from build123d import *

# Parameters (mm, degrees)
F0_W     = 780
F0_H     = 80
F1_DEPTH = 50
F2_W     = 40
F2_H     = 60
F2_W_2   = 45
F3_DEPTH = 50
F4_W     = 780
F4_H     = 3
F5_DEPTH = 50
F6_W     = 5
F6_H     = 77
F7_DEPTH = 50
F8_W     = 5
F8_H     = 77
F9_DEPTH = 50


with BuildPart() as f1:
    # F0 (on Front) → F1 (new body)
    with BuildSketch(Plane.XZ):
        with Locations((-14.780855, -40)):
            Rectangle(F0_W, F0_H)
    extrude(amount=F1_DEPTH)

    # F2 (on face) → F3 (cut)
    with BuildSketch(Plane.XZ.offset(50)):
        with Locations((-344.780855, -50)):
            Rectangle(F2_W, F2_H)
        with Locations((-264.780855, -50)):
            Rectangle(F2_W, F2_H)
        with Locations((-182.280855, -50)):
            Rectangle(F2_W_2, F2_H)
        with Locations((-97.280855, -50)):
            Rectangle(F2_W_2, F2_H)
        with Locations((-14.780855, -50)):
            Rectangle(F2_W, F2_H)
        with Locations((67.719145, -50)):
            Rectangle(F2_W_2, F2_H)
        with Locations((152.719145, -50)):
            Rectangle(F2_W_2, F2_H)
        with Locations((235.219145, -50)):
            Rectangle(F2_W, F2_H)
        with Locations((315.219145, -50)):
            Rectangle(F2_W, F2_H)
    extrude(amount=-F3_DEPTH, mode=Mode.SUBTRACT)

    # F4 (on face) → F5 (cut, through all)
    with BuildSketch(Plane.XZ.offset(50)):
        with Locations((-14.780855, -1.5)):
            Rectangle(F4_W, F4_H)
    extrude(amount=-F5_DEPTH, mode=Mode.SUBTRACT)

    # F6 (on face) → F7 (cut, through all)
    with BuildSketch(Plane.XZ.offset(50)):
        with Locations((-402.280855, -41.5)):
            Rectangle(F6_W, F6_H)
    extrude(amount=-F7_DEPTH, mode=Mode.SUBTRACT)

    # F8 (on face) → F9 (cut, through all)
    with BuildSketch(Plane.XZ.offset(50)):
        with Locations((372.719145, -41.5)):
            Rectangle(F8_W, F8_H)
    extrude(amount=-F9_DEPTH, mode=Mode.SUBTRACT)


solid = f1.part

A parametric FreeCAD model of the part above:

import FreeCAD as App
import Part
import Sketcher
Q = App.Units.Quantity

doc = App.newDocument("Part")
body = doc.addObject("PartDesign::Body", "Body")

# Sketch on XZ plane
sketch1 = doc.addObject("Sketcher::SketchObject", "Sketch")
body.addObject(sketch1)
sketch1.AttachmentSupport = (doc.XZ_Plane, [""])
sketch1.MapMode = "FlatFace"
sketch1.addGeometry([
    Part.LineSegment(App.Vector(-404.780855, 0, 0), App.Vector(-404.780855, -80, 0)),
    Part.LineSegment(App.Vector(-404.780855, -80, 0), App.Vector(375.219145, -80, 0)),
    Part.LineSegment(App.Vector(375.219145, -80, 0), App.Vector(375.219145, 0, 0)),
    Part.LineSegment(App.Vector(375.219145, 0, 0), App.Vector(-404.780855, 0, 0)),
], False)
sketch1.addConstraint([
    Sketcher.Constraint("Coincident", 0, 2, 1, 1),
    Sketcher.Constraint("Coincident", 1, 2, 2, 1),
    Sketcher.Constraint("Coincident", 2, 2, 3, 1),
    Sketcher.Constraint("Coincident", 3, 2, 0, 1),
    Sketcher.Constraint("Vertical", 0),
    Sketcher.Constraint("Horizontal", 1),
    Sketcher.Constraint("Vertical", 2),
    Sketcher.Constraint("Horizontal", 3),
    Sketcher.Constraint("PointOnObject", 2, 2, -1),
    Sketcher.Constraint("DistanceX", 1, 1, 1, 2, Q("780 mm")),
    Sketcher.Constraint("DistanceY", 0, 2, 0, 1, Q("80 mm")),
    Sketcher.Constraint("DistanceX", 0, 2, -1, 1, Q("404.780855 mm")),
])
pad1 = doc.addObject("PartDesign::Pad", "Pad")
body.addObject(pad1)
pad1.Profile = sketch1
pad1.Length = 50

# Sketch on XZ plane
sketch2 = doc.addObject("Sketcher::SketchObject", "Sketch001")
body.addObject(sketch2)
sketch2.AttachmentSupport = (doc.XZ_Plane, [""])
sketch2.MapMode = "FlatFace"
sketch2.AttachmentOffset = App.Placement(App.Vector(0, 0, 50), App.Rotation())
sketch2.addGeometry([
    Part.LineSegment(App.Vector(-364.780855, -20, 0), App.Vector(-364.780855, -80, 0)),  # 0
    Part.LineSegment(App.Vector(-364.780855, -80, 0), App.Vector(-324.780855, -80, 0)),  # 1
    Part.LineSegment(App.Vector(-324.780855, -80, 0), App.Vector(-324.780855, -20, 0)),  # 2
    Part.LineSegment(App.Vector(-324.780855, -20, 0), App.Vector(-364.780855, -20, 0)),  # 3
    Part.LineSegment(App.Vector(-284.780855, -20, 0), App.Vector(-284.780855, -80, 0)),  # 4
    Part.LineSegment(App.Vector(-284.780855, -80, 0), App.Vector(-244.780855, -80, 0)),  # 5
    Part.LineSegment(App.Vector(-244.780855, -80, 0), App.Vector(-244.780855, -20, 0)),  # 6
    Part.LineSegment(App.Vector(-244.780855, -20, 0), App.Vector(-284.780855, -20, 0)),  # 7
    Part.LineSegment(App.Vector(-204.780855, -20, 0), App.Vector(-204.780855, -80, 0)),  # 8
    Part.LineSegment(App.Vector(-204.780855, -80, 0), App.Vector(-159.780855, -80, 0)),  # 9
    Part.LineSegment(App.Vector(-159.780855, -80, 0), App.Vector(-159.780855, -20, 0)),  # 10
    Part.LineSegment(App.Vector(-159.780855, -20, 0), App.Vector(-204.780855, -20, 0)),  # 11
    Part.LineSegment(App.Vector(-119.780855, -20, 0), App.Vector(-119.780855, -80, 0)),  # 12
    Part.LineSegment(App.Vector(-119.780855, -80, 0), App.Vector(-74.780855, -80, 0)),  # 13
    Part.LineSegment(App.Vector(-74.780855, -80, 0), App.Vector(-74.780855, -20, 0)),  # 14
    Part.LineSegment(App.Vector(-74.780855, -20, 0), App.Vector(-119.780855, -20, 0)),  # 15
    Part.LineSegment(App.Vector(-34.780855, -20, 0), App.Vector(-34.780855, -80, 0)),  # 16
    Part.LineSegment(App.Vector(-34.780855, -80, 0), App.Vector(5.219145, -80, 0)),  # 17
    Part.LineSegment(App.Vector(5.219145, -80, 0), App.Vector(5.219145, -20, 0)),  # 18
    Part.LineSegment(App.Vector(5.219145, -20, 0), App.Vector(-34.780855, -20, 0)),  # 19
    Part.LineSegment(App.Vector(45.219145, -20, 0), App.Vector(45.219145, -80, 0)),  # 20
    Part.LineSegment(App.Vector(45.219145, -80, 0), App.Vector(90.219145, -80, 0)),  # 21
    Part.LineSegment(App.Vector(90.219145, -80, 0), App.Vector(90.219145, -20, 0)),  # 22
    Part.LineSegment(App.Vector(90.219145, -20, 0), App.Vector(45.219145, -20, 0)),  # 23
    Part.LineSegment(App.Vector(130.219145, -20, 0), App.Vector(130.219145, -80, 0)),  # 24
    Part.LineSegment(App.Vector(130.219145, -80, 0), App.Vector(175.219145, -80, 0)),  # 25
    Part.LineSegment(App.Vector(175.219145, -80, 0), App.Vector(175.219145, -20, 0)),  # 26
    Part.LineSegment(App.Vector(175.219145, -20, 0), App.Vector(130.219145, -20, 0)),  # 27
    Part.LineSegment(App.Vector(215.219145, -20, 0), App.Vector(215.219145, -80, 0)),  # 28
    Part.LineSegment(App.Vector(215.219145, -80, 0), App.Vector(255.219145, -80, 0)),  # 29
    Part.LineSegment(App.Vector(255.219145, -80, 0), App.Vector(255.219145, -20, 0)),  # 30
    Part.LineSegment(App.Vector(255.219145, -20, 0), App.Vector(215.219145, -20, 0)),  # 31
    Part.LineSegment(App.Vector(295.219145, -20, 0), App.Vector(295.219145, -80, 0)),  # 32
    Part.LineSegment(App.Vector(295.219145, -80, 0), App.Vector(335.219145, -80, 0)),  # 33
    Part.LineSegment(App.Vector(335.219145, -80, 0), App.Vector(335.219145, -20, 0)),  # 34
    Part.LineSegment(App.Vector(335.219145, -20, 0), App.Vector(295.219145, -20, 0)),  # 35
], False)
sketch2.addConstraint([
    Sketcher.Constraint("Coincident", 0, 2, 1, 1),
    Sketcher.Constraint("Coincident", 1, 2, 2, 1),
    Sketcher.Constraint("Coincident", 2, 2, 3, 1),
    Sketcher.Constraint("Coincident", 3, 2, 0, 1),
    Sketcher.Constraint("Coincident", 4, 2, 5, 1),
    Sketcher.Constraint("Coincident", 5, 2, 6, 1),
    Sketcher.Constraint("Coincident", 6, 2, 7, 1),
    Sketcher.Constraint("Coincident", 7, 2, 4, 1),
    Sketcher.Constraint("Coincident", 8, 2, 9, 1),
    Sketcher.Constraint("Coincident", 9, 2, 10, 1),
    Sketcher.Constraint("Coincident", 10, 2, 11, 1),
    Sketcher.Constraint("Coincident", 11, 2, 8, 1),
    Sketcher.Constraint("Coincident", 12, 2, 13, 1),
    Sketcher.Constraint("Coincident", 13, 2, 14, 1),
    Sketcher.Constraint("Coincident", 14, 2, 15, 1),
    Sketcher.Constraint("Coincident", 15, 2, 12, 1),
    Sketcher.Constraint("Coincident", 16, 2, 17, 1),
    Sketcher.Constraint("Coincident", 17, 2, 18, 1),
    Sketcher.Constraint("Coincident", 18, 2, 19, 1),
    Sketcher.Constraint("Coincident", 19, 2, 16, 1),
    Sketcher.Constraint("Coincident", 20, 2, 21, 1),
    Sketcher.Constraint("Coincident", 21, 2, 22, 1),
    Sketcher.Constraint("Coincident", 22, 2, 23, 1),
    Sketcher.Constraint("Coincident", 23, 2, 20, 1),
    Sketcher.Constraint("Coincident", 24, 2, 25, 1),
    Sketcher.Constraint("Coincident", 25, 2, 26, 1),
    Sketcher.Constraint("Coincident", 26, 2, 27, 1),
    Sketcher.Constraint("Coincident", 27, 2, 24, 1),
    Sketcher.Constraint("Coincident", 28, 2, 29, 1),
    Sketcher.Constraint("Coincident", 29, 2, 30, 1),
    Sketcher.Constraint("Coincident", 30, 2, 31, 1),
    Sketcher.Constraint("Coincident", 31, 2, 28, 1),
    Sketcher.Constraint("Coincident", 32, 2, 33, 1),
    Sketcher.Constraint("Coincident", 33, 2, 34, 1),
    Sketcher.Constraint("Coincident", 34, 2, 35, 1),
    Sketcher.Constraint("Coincident", 35, 2, 32, 1),
    Sketcher.Constraint("Vertical", 0),
    Sketcher.Constraint("Horizontal", 1),
    Sketcher.Constraint("Vertical", 2),
    Sketcher.Constraint("Horizontal", 3),
    Sketcher.Constraint("Vertical", 4),
    Sketcher.Constraint("Horizontal", 5),
    Sketcher.Constraint("Vertical", 6),
    Sketcher.Constraint("Horizontal", 7),
    Sketcher.Constraint("Vertical", 8),
    Sketcher.Constraint("Horizontal", 9),
    Sketcher.Constraint("Vertical", 10),
    Sketcher.Constraint("Horizontal", 11),
    Sketcher.Constraint("Vertical", 12),
    Sketcher.Constraint("Horizontal", 13),
    Sketcher.Constraint("Vertical", 14),
    Sketcher.Constraint("Horizontal", 15),
    Sketcher.Constraint("Vertical", 16),
    Sketcher.Constraint("Horizontal", 17),
    Sketcher.Constraint("Vertical", 18),
    Sketcher.Constraint("Horizontal", 19),
    Sketcher.Constraint("Vertical", 20),
    Sketcher.Constraint("Horizontal", 21),
    Sketcher.Constraint("Vertical", 22),
    Sketcher.Constraint("Horizontal", 23),
    Sketcher.Constraint("Vertical", 24),
    Sketcher.Constraint("Horizontal", 25),
    Sketcher.Constraint("Vertical", 26),
    Sketcher.Constraint("Horizontal", 27),
    Sketcher.Constraint("Vertical", 28),
    Sketcher.Constraint("Horizontal", 29),
    Sketcher.Constraint("Vertical", 30),
    Sketcher.Constraint("Horizontal", 31),
    Sketcher.Constraint("Vertical", 32),
    Sketcher.Constraint("Horizontal", 33),
    Sketcher.Constraint("Vertical", 34),
    Sketcher.Constraint("Horizontal", 35),
    Sketcher.Constraint("Horizontal", 1, 2, 4, 2),
    Sketcher.Constraint("Horizontal", 3, 2, 6, 2),
    Sketcher.Constraint("Horizontal", 5, 2, 8, 2),
    Sketcher.Constraint("Horizontal", 7, 2, 10, 2),
    Sketcher.Constraint("Horizontal", 9, 2, 12, 2),
    Sketcher.Constraint("Horizontal", 11, 2, 14, 2),
    Sketcher.Constraint("Horizontal", 13, 2, 16, 2),
    Sketcher.Constraint("Horizontal", 15, 2, 18, 2),
    Sketcher.Constraint("Horizontal", 17, 2, 20, 2),
    Sketcher.Constraint("Horizontal", 19, 2, 22, 2),
    Sketcher.Constraint("Horizontal", 21, 2, 24, 2),
    Sketcher.Constraint("Horizontal", 23, 2, 26, 2),
    Sketcher.Constraint("Horizontal", 25, 2, 28, 2),
    Sketcher.Constraint("Horizontal", 27, 2, 30, 2),
    Sketcher.Constraint("Horizontal", 29, 2, 32, 2),
    Sketcher.Constraint("Horizontal", 31, 2, 34, 2),
    Sketcher.Constraint("Equal", 3, 5),
    Sketcher.Constraint("Equal", 11, 13),
    Sketcher.Constraint("Equal", 7, 17),
    Sketcher.Constraint("Equal", 15, 21),
    Sketcher.Constraint("Equal", 23, 25),
    Sketcher.Constraint("Equal", 19, 29),
    Sketcher.Constraint("Equal", 31, 33),
    Sketcher.Constraint("DistanceX", 1, 1, 1, 2, Q("40 mm")),
    Sketcher.Constraint("DistanceX", 9, 1, 9, 2, Q("45 mm")),
    Sketcher.Constraint("DistanceY", 0, 2, 0, 1, Q("60 mm")),
    Sketcher.Constraint("DistanceY", 0, 2, -1, 1, Q("80 mm")),
    Sketcher.Constraint("DistanceX", 1, 2, 4, 2, Q("40 mm")),
    Sketcher.Constraint("DistanceX", 5, 2, 8, 2, Q("40 mm")),
    Sketcher.Constraint("DistanceX", 9, 2, 12, 2, Q("40 mm")),
    Sketcher.Constraint("DistanceX", 13, 2, 16, 2, Q("40 mm")),
    Sketcher.Constraint("DistanceX", 17, 2, 20, 2, Q("40 mm")),
    Sketcher.Constraint("DistanceX", 21, 2, 24, 2, Q("40 mm")),
    Sketcher.Constraint("DistanceX", 25, 2, 28, 2, Q("40 mm")),
    Sketcher.Constraint("DistanceX", 29, 2, 32, 2, Q("40 mm")),
    Sketcher.Constraint("DistanceX", 0, 2, -1, 1, Q("364.780855 mm")),
])
pocket1 = doc.addObject("PartDesign::Pocket", "Pocket")
body.addObject(pocket1)
pocket1.Profile = sketch2
pocket1.Length = 50

# Sketch on XZ plane
sketch3 = doc.addObject("Sketcher::SketchObject", "Sketch002")
body.addObject(sketch3)
sketch3.AttachmentSupport = (doc.XZ_Plane, [""])
sketch3.MapMode = "FlatFace"
sketch3.AttachmentOffset = App.Placement(App.Vector(0, 0, 50), App.Rotation())
sketch3.addGeometry([
    Part.LineSegment(App.Vector(-404.780855, 0, 0), App.Vector(-404.780855, -3, 0)),
    Part.LineSegment(App.Vector(-404.780855, -3, 0), App.Vector(375.219145, -3, 0)),
    Part.LineSegment(App.Vector(375.219145, -3, 0), App.Vector(375.219145, 0, 0)),
    Part.LineSegment(App.Vector(375.219145, 0, 0), App.Vector(-404.780855, 0, 0)),
], False)
sketch3.addConstraint([
    Sketcher.Constraint("Coincident", 0, 2, 1, 1),
    Sketcher.Constraint("Coincident", 1, 2, 2, 1),
    Sketcher.Constraint("Coincident", 2, 2, 3, 1),
    Sketcher.Constraint("Coincident", 3, 2, 0, 1),
    Sketcher.Constraint("Vertical", 0),
    Sketcher.Constraint("Horizontal", 1),
    Sketcher.Constraint("Vertical", 2),
    Sketcher.Constraint("Horizontal", 3),
    Sketcher.Constraint("PointOnObject", 2, 2, -1),
    Sketcher.Constraint("DistanceX", 1, 1, 1, 2, Q("780 mm")),
    Sketcher.Constraint("DistanceY", 0, 2, 0, 1, Q("3 mm")),
    Sketcher.Constraint("DistanceX", 0, 2, -1, 1, Q("404.780855 mm")),
])
pocket2 = doc.addObject("PartDesign::Pocket", "Pocket001")
body.addObject(pocket2)
pocket2.Profile = sketch3
pocket2.Type = "ThroughAll"

# Sketch on XZ plane
sketch4 = doc.addObject("Sketcher::SketchObject", "Sketch003")
body.addObject(sketch4)
sketch4.AttachmentSupport = (doc.XZ_Plane, [""])
sketch4.MapMode = "FlatFace"
sketch4.AttachmentOffset = App.Placement(App.Vector(0, 0, 50), App.Rotation())
sketch4.addGeometry([
    Part.LineSegment(App.Vector(-404.780855, -3, 0), App.Vector(-404.780855, -80, 0)),
    Part.LineSegment(App.Vector(-404.780855, -80, 0), App.Vector(-399.780855, -80, 0)),
    Part.LineSegment(App.Vector(-399.780855, -80, 0), App.Vector(-399.780855, -3, 0)),
    Part.LineSegment(App.Vector(-399.780855, -3, 0), App.Vector(-404.780855, -3, 0)),
], False)
sketch4.addConstraint([
    Sketcher.Constraint("Coincident", 0, 2, 1, 1),
    Sketcher.Constraint("Coincident", 1, 2, 2, 1),
    Sketcher.Constraint("Coincident", 2, 2, 3, 1),
    Sketcher.Constraint("Coincident", 3, 2, 0, 1),
    Sketcher.Constraint("Vertical", 0),
    Sketcher.Constraint("Horizontal", 1),
    Sketcher.Constraint("Vertical", 2),
    Sketcher.Constraint("Horizontal", 3),
    Sketcher.Constraint("DistanceX", 1, 1, 1, 2, Q("5 mm")),
    Sketcher.Constraint("DistanceY", 0, 2, 0, 1, Q("77 mm")),
    Sketcher.Constraint("DistanceY", 0, 2, -1, 1, Q("80 mm")),
    Sketcher.Constraint("DistanceX", 0, 2, -1, 1, Q("404.780855 mm")),
])
pocket3 = doc.addObject("PartDesign::Pocket", "Pocket002")
body.addObject(pocket3)
pocket3.Profile = sketch4
pocket3.Type = "ThroughAll"

# Sketch on XZ plane
sketch5 = doc.addObject("Sketcher::SketchObject", "Sketch004")
body.addObject(sketch5)
sketch5.AttachmentSupport = (doc.XZ_Plane, [""])
sketch5.MapMode = "FlatFace"
sketch5.AttachmentOffset = App.Placement(App.Vector(0, 0, 50), App.Rotation())
sketch5.addGeometry([
    Part.LineSegment(App.Vector(370.219145, -3, 0), App.Vector(370.219145, -80, 0)),
    Part.LineSegment(App.Vector(370.219145, -80, 0), App.Vector(375.219145, -80, 0)),
    Part.LineSegment(App.Vector(375.219145, -80, 0), App.Vector(375.219145, -3, 0)),
    Part.LineSegment(App.Vector(375.219145, -3, 0), App.Vector(370.219145, -3, 0)),
], False)
sketch5.addConstraint([
    Sketcher.Constraint("Coincident", 0, 2, 1, 1),
    Sketcher.Constraint("Coincident", 1, 2, 2, 1),
    Sketcher.Constraint("Coincident", 2, 2, 3, 1),
    Sketcher.Constraint("Coincident", 3, 2, 0, 1),
    Sketcher.Constraint("Vertical", 0),
    Sketcher.Constraint("Horizontal", 1),
    Sketcher.Constraint("Vertical", 2),
    Sketcher.Constraint("Horizontal", 3),
    Sketcher.Constraint("DistanceX", 1, 1, 1, 2, Q("5 mm")),
    Sketcher.Constraint("DistanceY", 0, 2, 0, 1, Q("77 mm")),
    Sketcher.Constraint("DistanceY", 0, 2, -1, 1, Q("80 mm")),
    Sketcher.Constraint("DistanceX", -1, 1, 0, 2, Q("370.219145 mm")),
])
pocket4 = doc.addObject("PartDesign::Pocket", "Pocket003")
body.addObject(pocket4)
pocket4.Profile = sketch5
pocket4.Type = "ThroughAll"

doc.recompute()
